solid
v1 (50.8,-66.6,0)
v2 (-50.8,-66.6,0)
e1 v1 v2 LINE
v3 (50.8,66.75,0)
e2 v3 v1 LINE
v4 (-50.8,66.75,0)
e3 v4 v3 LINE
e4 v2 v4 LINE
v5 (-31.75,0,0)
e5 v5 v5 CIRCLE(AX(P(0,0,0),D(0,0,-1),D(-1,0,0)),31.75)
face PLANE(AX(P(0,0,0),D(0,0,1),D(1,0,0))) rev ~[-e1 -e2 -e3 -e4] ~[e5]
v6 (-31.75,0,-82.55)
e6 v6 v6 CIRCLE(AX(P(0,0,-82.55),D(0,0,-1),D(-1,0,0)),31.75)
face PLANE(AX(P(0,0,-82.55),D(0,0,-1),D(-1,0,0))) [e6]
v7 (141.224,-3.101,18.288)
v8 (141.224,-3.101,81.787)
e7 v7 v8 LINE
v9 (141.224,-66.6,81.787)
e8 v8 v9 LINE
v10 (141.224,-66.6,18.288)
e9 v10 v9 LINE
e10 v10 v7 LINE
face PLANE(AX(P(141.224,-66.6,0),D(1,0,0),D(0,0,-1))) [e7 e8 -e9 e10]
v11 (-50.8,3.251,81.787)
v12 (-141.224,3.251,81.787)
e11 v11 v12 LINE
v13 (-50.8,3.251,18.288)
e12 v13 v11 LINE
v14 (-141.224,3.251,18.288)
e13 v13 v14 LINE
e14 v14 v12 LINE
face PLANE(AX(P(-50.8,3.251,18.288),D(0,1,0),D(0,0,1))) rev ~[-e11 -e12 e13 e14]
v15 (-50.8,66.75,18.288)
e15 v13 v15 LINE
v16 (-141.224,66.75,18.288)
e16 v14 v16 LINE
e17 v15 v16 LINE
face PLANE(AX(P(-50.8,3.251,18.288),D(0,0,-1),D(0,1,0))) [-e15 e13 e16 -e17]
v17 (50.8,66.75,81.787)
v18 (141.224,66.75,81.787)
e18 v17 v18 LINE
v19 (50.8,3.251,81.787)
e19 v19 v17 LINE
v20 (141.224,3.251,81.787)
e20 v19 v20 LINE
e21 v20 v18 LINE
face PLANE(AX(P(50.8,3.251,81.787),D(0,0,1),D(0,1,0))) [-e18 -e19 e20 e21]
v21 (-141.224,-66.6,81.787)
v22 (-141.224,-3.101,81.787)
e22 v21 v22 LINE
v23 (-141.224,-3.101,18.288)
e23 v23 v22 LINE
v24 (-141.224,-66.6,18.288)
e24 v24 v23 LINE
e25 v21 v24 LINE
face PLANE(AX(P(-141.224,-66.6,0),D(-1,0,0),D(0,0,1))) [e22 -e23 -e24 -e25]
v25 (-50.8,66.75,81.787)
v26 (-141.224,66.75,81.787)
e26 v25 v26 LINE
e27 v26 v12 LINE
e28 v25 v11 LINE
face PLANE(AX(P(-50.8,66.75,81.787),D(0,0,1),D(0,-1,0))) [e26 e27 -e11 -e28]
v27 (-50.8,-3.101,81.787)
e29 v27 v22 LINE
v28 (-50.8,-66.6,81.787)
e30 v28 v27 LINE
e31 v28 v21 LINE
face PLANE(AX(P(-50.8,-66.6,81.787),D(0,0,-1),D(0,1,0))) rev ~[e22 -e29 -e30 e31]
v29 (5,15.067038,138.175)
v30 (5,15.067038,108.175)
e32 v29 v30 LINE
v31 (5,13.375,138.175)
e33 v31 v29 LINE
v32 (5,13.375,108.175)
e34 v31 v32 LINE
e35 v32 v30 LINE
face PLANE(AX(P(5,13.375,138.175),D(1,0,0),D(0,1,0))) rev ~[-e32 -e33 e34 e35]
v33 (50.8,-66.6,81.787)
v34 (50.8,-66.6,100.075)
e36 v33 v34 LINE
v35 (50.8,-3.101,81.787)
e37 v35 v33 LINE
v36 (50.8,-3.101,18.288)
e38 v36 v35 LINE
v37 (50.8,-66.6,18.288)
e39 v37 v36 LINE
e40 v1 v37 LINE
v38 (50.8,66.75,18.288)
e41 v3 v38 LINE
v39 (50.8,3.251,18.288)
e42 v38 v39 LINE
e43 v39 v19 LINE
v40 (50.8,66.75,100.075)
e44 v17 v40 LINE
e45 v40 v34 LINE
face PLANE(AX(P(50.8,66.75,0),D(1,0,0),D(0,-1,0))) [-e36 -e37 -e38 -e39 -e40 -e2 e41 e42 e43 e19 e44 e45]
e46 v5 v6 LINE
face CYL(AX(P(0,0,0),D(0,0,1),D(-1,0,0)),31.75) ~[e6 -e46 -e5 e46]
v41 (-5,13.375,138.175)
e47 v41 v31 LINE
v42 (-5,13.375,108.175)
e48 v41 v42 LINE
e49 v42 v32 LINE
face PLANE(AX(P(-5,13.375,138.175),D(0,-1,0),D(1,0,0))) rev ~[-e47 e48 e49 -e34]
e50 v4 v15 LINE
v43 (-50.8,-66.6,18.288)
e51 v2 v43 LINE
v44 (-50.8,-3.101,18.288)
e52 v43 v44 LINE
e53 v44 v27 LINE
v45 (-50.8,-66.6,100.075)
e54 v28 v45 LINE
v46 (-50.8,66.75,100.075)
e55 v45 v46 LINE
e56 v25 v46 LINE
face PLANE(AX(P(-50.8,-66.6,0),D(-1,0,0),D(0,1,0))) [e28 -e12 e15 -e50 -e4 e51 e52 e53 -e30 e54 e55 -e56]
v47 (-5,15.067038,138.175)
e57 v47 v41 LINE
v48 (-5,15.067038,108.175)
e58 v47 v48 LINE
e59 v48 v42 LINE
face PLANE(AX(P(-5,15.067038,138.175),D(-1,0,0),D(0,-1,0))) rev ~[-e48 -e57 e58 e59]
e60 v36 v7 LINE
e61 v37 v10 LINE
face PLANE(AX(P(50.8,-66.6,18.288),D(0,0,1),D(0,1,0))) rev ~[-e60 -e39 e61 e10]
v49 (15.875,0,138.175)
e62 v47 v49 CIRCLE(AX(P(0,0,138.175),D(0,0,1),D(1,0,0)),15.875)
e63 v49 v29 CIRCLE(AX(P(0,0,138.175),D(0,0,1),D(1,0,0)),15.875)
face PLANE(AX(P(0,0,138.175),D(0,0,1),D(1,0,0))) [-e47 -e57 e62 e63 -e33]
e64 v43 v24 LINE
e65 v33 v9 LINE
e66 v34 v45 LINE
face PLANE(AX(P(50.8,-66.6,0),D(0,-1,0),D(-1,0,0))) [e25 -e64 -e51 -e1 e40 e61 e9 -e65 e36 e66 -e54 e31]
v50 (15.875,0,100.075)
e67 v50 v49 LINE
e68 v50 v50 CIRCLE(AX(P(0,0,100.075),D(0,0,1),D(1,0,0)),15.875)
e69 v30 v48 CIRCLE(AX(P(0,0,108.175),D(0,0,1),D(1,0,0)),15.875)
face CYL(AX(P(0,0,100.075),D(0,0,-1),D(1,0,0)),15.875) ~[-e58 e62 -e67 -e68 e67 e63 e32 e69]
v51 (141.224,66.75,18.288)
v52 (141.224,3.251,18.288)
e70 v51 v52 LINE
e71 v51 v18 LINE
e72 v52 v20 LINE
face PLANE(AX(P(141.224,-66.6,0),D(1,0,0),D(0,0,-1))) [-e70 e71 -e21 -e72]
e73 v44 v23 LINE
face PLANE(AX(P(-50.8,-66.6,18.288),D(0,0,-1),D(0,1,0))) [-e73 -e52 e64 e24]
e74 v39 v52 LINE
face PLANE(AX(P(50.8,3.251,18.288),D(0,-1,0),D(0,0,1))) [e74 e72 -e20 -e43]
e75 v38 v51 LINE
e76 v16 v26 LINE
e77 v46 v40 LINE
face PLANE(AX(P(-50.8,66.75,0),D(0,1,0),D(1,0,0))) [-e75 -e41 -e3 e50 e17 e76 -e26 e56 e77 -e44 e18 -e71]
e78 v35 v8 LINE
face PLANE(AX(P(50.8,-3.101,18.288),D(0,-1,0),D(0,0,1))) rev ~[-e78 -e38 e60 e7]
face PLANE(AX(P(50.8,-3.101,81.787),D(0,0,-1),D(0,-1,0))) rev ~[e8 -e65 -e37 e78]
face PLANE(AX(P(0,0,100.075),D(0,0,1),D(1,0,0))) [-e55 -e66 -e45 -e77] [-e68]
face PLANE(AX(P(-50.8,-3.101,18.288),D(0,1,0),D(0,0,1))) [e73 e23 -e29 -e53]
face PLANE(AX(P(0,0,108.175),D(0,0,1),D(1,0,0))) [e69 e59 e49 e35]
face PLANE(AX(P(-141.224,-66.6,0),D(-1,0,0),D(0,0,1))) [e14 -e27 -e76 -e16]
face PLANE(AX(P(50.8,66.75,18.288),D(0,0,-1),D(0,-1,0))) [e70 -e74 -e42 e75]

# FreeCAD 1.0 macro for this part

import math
import FreeCAD as App
import Part
import Sketcher

V = App.Vector
Q = App.Units.Quantity

doc = App.newDocument("Part")
params = doc.addObject("Spreadsheet::Sheet", "Params")
for row, (alias, value) in enumerate([
    ("sketch1_width", "4 in"),
    ("sketch1_height", "5.25 in"),
    ("pad1_length", "100.075 mm"),
    ("sketch2_diameter", "1.25 in"),
    ("pad2_length", "1.5 in"),
    ("sketch3_diameter", "2.5 in"),
    ("pad3_length", "3.25 in"),
    ("pad4_length", "3.56 in"),
    ("pad5_length", "3.56 in"),
    ("sketch6_radius", "0.625 in"),
    ("pocket1_length", "1.1811024 in"),
], start=1):
    params.set(f"A{row}", alias)
    params.set(f"B{row}", "=" + value)
    params.setAlias(f"B{row}", alias)

body = doc.addObject("PartDesign::Body", "Body")

# Sketch on XY plane
sketch1 = body.newObject("Sketcher::SketchObject", "Sketch")
sketch1.AttachmentSupport = (doc.getObject("XY_Plane"), [""])
sketch1.MapMode = "FlatFace"
sketch1.addGeometry(Part.LineSegment(V(50.8, 66.75, 0), V(-50.8, 66.75, 0)), False)
sketch1.addGeometry(Part.LineSegment(V(-50.8, 66.75, 0), V(-50.8, -66.6, 0)), False)
sketch1.addGeometry(Part.LineSegment(V(-50.8, -66.6, 0), V(50.8, -66.6, 0)), False)
sketch1.addGeometry(Part.LineSegment(V(50.8, -66.6, 0), V(50.8, 66.75, 0)), False)
sketch1.addConstraint(Sketcher.Constraint("Coincident", 0, 2, 1, 1))
sketch1.addConstraint(Sketcher.Constraint("Coincident", 1, 2, 2, 1))
sketch1.addConstraint(Sketcher.Constraint("Coincident", 2, 2, 3, 1))
sketch1.addConstraint(Sketcher.Constraint("Coincident", 3, 2, 0, 1))
sketch1.addConstraint(Sketcher.Constraint("Horizontal", 0))
sketch1.addConstraint(Sketcher.Constraint("Vertical", 1))
sketch1.addConstraint(Sketcher.Constraint("Horizontal", 2))
sketch1.addConstraint(Sketcher.Constraint("Vertical", 3))
sketch1.addConstraint(Sketcher.Constraint("DistanceX", 0, 2, 0, 1, Q("4 in")))
sketch1.addConstraint(Sketcher.Constraint("DistanceX", 0, 2, -1, 1, Q("2 in")))
sketch1.addConstraint(Sketcher.Constraint("DistanceY", 1, 2, 1, 1, Q("5.25 in")))
sketch1.addConstraint(Sketcher.Constraint("DistanceY", -1, 1, 0, 2, Q("66.75 mm")))
sketch1.setExpression("Constraints[8]", "Params.sketch1_width")
sketch1.setExpression("Constraints[10]", "Params.sketch1_height")
pad1 = body.newObject("PartDesign::Pad", "Pad")
pad1.Profile = sketch1
pad1.setExpression("Length", "Params.pad1_length")

# Sketch on XY plane
sketch2 = body.newObject("Sketcher::SketchObject", "Sketch001")
sketch2.AttachmentSupport = (doc.getObject("XY_Plane"), [""])
sketch2.MapMode = "FlatFace"
sketch2.AttachmentOffset = App.Placement(V(0, 0, 100.075), App.Rotation())
sketch2.addGeometry(Part.Circle(V(0, 0, 0), V(0, 0, 1), 15.875), False)
sketch2.addConstraint(Sketcher.Constraint("Coincident", 0, 3, -1, 1))
sketch2.addConstraint(Sketcher.Constraint("Diameter", 0, Q("1.25 in")))
sketch2.setExpression("Constraints[1]", "Params.sketch2_diameter")
pad2 = body.newObject("PartDesign::Pad", "Pad001")
pad2.Profile = sketch2
pad2.setExpression("Length", "Params.pad2_length")

# Sketch on XY plane
sketch3 = body.newObject("Sketcher::SketchObject", "Sketch002")
sketch3.AttachmentSupport = (doc.getObject("XY_Plane"), [""])
sketch3.MapMode = "FlatFace"
sketch3.addGeometry(Part.Circle(V(0, 0, 0), V(0, 0, 1), 31.75), False)
sketch3.addConstraint(Sketcher.Constraint("Coincident", 0, 3, -1, 1))
sketch3.addConstraint(Sketcher.Constraint("Diameter", 0, Q("2.5 in")))
sketch3.setExpression("Constraints[1]", "Params.sketch3_diameter")
pad3 = body.newObject("PartDesign::Pad", "Pad002")
pad3.Profile = sketch3
pad3.setExpression("Length", "Params.pad3_length")
pad3.Reversed = True

# Sketch on YZ plane
sketch4 = body.newObject("Sketcher::SketchObject", "Sketch003")
sketch4.AttachmentSupport = (doc.getObject("YZ_Plane"), [""])
sketch4.MapMode = "FlatFace"
sketch4.AttachmentOffset = App.Placement(V(0, 0, 2 * 25.4), App.Rotation())
sketch4.addGeometry(Part.LineSegment(V(3.251, 18.288, 0), V(66.75, 18.288, 0)), False)
sketch4.addGeometry(Part.LineSegment(V(66.75, 18.288, 0), V(66.75, 81.787, 0)), False)
sketch4.addGeometry(Part.LineSegment(V(66.75, 81.787, 0), V(3.251, 81.787, 0)), False)
sketch4.addGeometry(Part.LineSegment(V(3.251, 81.787, 0), V(3.251, 18.288, 0)), False)
sketch4.addGeometry(Part.LineSegment(V(-66.6, 81.787, 0), V(-66.6, 18.288, 0)), False)
sketch4.addGeometry(Part.LineSegment(V(-66.6, 18.288, 0), V(-3.101, 18.288, 0)), False)
sketch4.addGeometry(Part.LineSegment(V(-3.101, 18.288, 0), V(-3.101, 81.787, 0)), False)
sketch4.addGeometry(Part.LineSegment(V(-3.101, 81.787, 0), V(-66.6, 81.787, 0)), False)
sketch4.addConstraint(Sketcher.Constraint("Coincident", 0, 2, 1, 1))
sketch4.addConstraint(Sketcher.Constraint("Coincident", 1, 2, 2, 1))
sketch4.addConstraint(Sketcher.Constraint("Coincident", 2, 2, 3, 1))
sketch4.addConstraint(Sketcher.Constraint("Coincident", 3, 2, 0, 1))
sketch4.addConstraint(Sketcher.Constraint("Coincident", 4, 2, 5, 1))
sketch4.addConstraint(Sketcher.Constraint("Coincident", 5, 2, 6, 1))
sketch4.addConstraint(Sketcher.Constraint("Coincident", 6, 2, 7, 1))
sketch4.addConstraint(Sketcher.Constraint("Coincident", 7, 2, 4, 1))
sketch4.addConstraint(Sketcher.Constraint("Horizontal", 0))
sketch4.addConstraint(Sketcher.Constraint("Vertical", 1))
sketch4.addConstraint(Sketcher.Constraint("Horizontal", 2))
sketch4.addConstraint(Sketcher.Constraint("Vertical", 3))
sketch4.addConstraint(Sketcher.Constraint("Vertical", 4))
sketch4.addConstraint(Sketcher.Constraint("Horizontal", 5))
sketch4.addConstraint(Sketcher.Constraint("Vertical", 6))
sketch4.addConstraint(Sketcher.Constraint("Horizontal", 7))
sketch4.addConstraint(Sketcher.Constraint("Horizontal", 3, 2, 4, 2))
sketch4.addConstraint(Sketcher.Constraint("Horizontal", 2, 2, 6, 2))
sketch4.addConstraint(Sketcher.Constraint("Equal", 2, 5))
sketch4.addConstraint(Sketcher.Constraint("Equal", 7, 1))
sketch4.addConstraint(Sketcher.Constraint("DistanceY", -1, 1, 0, 2, Q("0.72 in")))
sketch4.addConstraint(Sketcher.Constraint("DistanceX", 0, 1, 0, 2, Q("63.499 mm")))
sketch4.addConstraint(Sketcher.Constraint("DistanceX", 4, 2, 0, 2, Q("5.25 in")))
sketch4.addConstraint(Sketcher.Constraint("DistanceX", -1, 1, 2, 2, Q("0.128 in")))
pad4 = body.newObject("PartDesign::Pad", "Pad003")
pad4.Profile = sketch4
pad4.setExpression("Length", "Params.pad4_length")

# Sketch on YZ plane
sketch5 = body.newObject("Sketcher::SketchObject", "Sketch004")
sketch5.AttachmentSupport = (doc.getObject("YZ_Plane"), [""])
sketch5.MapMode = "FlatFace"
sketch5.AttachmentOffset = App.Placement(V(0, 0, -2 * 25.4), App.Rotation())
sketch5.addGeometry(Part.LineSegment(V(66.75, 18.288, 0), V(3.251, 18.288, 0)), False)
sketch5.addGeometry(Part.LineSegment(V(3.251, 18.288, 0), V(3.251, 81.787, 0)), False)
sketch5.addGeometry(Part.LineSegment(V(3.251, 81.787, 0), V(66.75, 81.787, 0)), False)
sketch5.addGeometry(Part.LineSegment(V(66.75, 81.787, 0), V(66.75, 18.288, 0)), False)
sketch5.addGeometry(Part.LineSegment(V(-3.101, 18.288, 0), V(-66.6, 18.288, 0)), False)
sketch5.addGeometry(Part.LineSegment(V(-66.6, 18.288, 0), V(-66.6, 81.787, 0)), False)
sketch5.addGeometry(Part.LineSegment(V(-66.6, 81.787, 0), V(-3.101, 81.787, 0)), False)
sketch5.addGeometry(Part.LineSegment(V(-3.101, 81.787, 0), V(-3.101, 18.288, 0)), False)
sketch5.addConstraint(Sketcher.Constraint("Coincident", 0, 2, 1, 1))
sketch5.addConstraint(Sketcher.Constraint("Coincident", 1, 2, 2, 1))
sketch5.addConstraint(Sketcher.Constraint("Coincident", 2, 2, 3, 1))
sketch5.addConstraint(Sketcher.Constraint("Coincident", 3, 2, 0, 1))
sketch5.addConstraint(Sketcher.Constraint("Coincident", 4, 2, 5, 1))
sketch5.addConstraint(Sketcher.Constraint("Coincident", 5, 2, 6, 1))
sketch5.addConstraint(Sketcher.Constraint("Coincident", 6, 2, 7, 1))
sketch5.addConstraint(Sketcher.Constraint("Coincident", 7, 2, 4, 1))
sketch5.addConstraint(Sketcher.Constraint("Horizontal", 0))
sketch5.addConstraint(Sketcher.Constraint("Vertical", 1))
sketch5.addConstraint(Sketcher.Constraint("Horizontal", 2))
sketch5.addConstraint(Sketcher.Constraint("Vertical", 3))
sketch5.addConstraint(Sketcher.Constraint("Horizontal", 4))
sketch5.addConstraint(Sketcher.Constraint("Vertical", 5))
sketch5.addConstraint(Sketcher.Constraint("Horizontal", 6))
sketch5.addConstraint(Sketcher.Constraint("Vertical", 7))
sketch5.addConstraint(Sketcher.Constraint("Horizontal", 3, 2, 4, 2))
sketch5.addConstraint(Sketcher.Constraint("Horizontal", 2, 2, 5, 2))
sketch5.addConstraint(Sketcher.Constraint("Equal", 2, 4))
sketch5.addConstraint(Sketcher.Constraint("Equal", 6, 1))
sketch5.addConstraint(Sketcher.Constraint("DistanceY", -1, 1, 0, 2, Q("0.72 in")))
sketch5.addConstraint(Sketcher.Constraint("DistanceX", 4, 2, 3, 2, Q("5.25 in")))
sketch5.addConstraint(Sketcher.Constraint("DistanceX", -1, 1, 0, 2, Q("0.128 in")))
sketch5.addConstraint(Sketcher.Constraint("DistanceX", 0, 2, 0, 1, Q("63.499 mm")))
pad5 = body.newObject("PartDesign::Pad", "Pad004")
pad5.Profile = sketch5
pad5.setExpression("Length", "Params.pad5_length")
pad5.Reversed = True

# Sketch on XY plane
sketch6 = body.newObject("Sketcher::SketchObject", "Sketch005")
sketch6.AttachmentSupport = (doc.getObject("XY_Plane"), [""])
sketch6.MapMode = "FlatFace"
sketch6.AttachmentOffset = App.Placement(V(0, 0, 138.175), App.Rotation())
sketch6.addGeometry(Part.LineSegment(V(-5, 15.067038, 0), V(-5, 13.375, 0)), False)
sketch6.addGeometry(Part.LineSegment(V(-5, 13.375, 0), V(5, 13.375, 0)), False)
sketch6.addGeometry(Part.LineSegment(V(5, 13.375, 0), V(5, 15.067038, 0)), False)
sketch6.addGeometry(Part.ArcOfCircle(Part.Circle(V(0, 0, 0), V(0, 0, 1), 15.875), math.radians(71.641563), math.radians(108.358437)), False)
sketch6.addConstraint(Sketcher.Constraint("Coincident", 0, 2, 1, 1))
sketch6.addConstraint(Sketcher.Constraint("Coincident", 1, 2, 2, 1))
sketch6.addConstraint(Sketcher.Constraint("Coincident", 2, 2, 3, 1))
sketch6.addConstraint(Sketcher.Constraint("Coincident", 3, 2, 0, 1))
sketch6.addConstraint(Sketcher.Constraint("Vertical", 0))
sketch6.addConstraint(Sketcher.Constraint("Horizontal", 1))
sketch6.addConstraint(Sketcher.Constraint("Vertical", 2))
sketch6.addConstraint(Sketcher.Constraint("Coincident", 3, 3, -1, 1))
sketch6.addConstraint(Sketcher.Constraint("Horizontal", 2, 2, 3, 2))
sketch6.addConstraint(Sketcher.Constraint("DistanceX", 1, 1, 1, 2, Q("0.3937 in")))
sketch6.addConstraint(Sketcher.Constraint("Radius", 3, Q("0.625 in")))
sketch6.addConstraint(Sketcher.Constraint("DistanceY", 0, 2, 0, 1, Q("1.692 mm")))
sketch6.setExpression("Constraints[10]", "Params.sketch6_radius")
pocket1 = body.newObject("PartDesign::Pocket", "Pocket")
pocket1.Profile = sketch6
pocket1.setExpression("Length", "Params.pocket1_length")

doc.recompute()
